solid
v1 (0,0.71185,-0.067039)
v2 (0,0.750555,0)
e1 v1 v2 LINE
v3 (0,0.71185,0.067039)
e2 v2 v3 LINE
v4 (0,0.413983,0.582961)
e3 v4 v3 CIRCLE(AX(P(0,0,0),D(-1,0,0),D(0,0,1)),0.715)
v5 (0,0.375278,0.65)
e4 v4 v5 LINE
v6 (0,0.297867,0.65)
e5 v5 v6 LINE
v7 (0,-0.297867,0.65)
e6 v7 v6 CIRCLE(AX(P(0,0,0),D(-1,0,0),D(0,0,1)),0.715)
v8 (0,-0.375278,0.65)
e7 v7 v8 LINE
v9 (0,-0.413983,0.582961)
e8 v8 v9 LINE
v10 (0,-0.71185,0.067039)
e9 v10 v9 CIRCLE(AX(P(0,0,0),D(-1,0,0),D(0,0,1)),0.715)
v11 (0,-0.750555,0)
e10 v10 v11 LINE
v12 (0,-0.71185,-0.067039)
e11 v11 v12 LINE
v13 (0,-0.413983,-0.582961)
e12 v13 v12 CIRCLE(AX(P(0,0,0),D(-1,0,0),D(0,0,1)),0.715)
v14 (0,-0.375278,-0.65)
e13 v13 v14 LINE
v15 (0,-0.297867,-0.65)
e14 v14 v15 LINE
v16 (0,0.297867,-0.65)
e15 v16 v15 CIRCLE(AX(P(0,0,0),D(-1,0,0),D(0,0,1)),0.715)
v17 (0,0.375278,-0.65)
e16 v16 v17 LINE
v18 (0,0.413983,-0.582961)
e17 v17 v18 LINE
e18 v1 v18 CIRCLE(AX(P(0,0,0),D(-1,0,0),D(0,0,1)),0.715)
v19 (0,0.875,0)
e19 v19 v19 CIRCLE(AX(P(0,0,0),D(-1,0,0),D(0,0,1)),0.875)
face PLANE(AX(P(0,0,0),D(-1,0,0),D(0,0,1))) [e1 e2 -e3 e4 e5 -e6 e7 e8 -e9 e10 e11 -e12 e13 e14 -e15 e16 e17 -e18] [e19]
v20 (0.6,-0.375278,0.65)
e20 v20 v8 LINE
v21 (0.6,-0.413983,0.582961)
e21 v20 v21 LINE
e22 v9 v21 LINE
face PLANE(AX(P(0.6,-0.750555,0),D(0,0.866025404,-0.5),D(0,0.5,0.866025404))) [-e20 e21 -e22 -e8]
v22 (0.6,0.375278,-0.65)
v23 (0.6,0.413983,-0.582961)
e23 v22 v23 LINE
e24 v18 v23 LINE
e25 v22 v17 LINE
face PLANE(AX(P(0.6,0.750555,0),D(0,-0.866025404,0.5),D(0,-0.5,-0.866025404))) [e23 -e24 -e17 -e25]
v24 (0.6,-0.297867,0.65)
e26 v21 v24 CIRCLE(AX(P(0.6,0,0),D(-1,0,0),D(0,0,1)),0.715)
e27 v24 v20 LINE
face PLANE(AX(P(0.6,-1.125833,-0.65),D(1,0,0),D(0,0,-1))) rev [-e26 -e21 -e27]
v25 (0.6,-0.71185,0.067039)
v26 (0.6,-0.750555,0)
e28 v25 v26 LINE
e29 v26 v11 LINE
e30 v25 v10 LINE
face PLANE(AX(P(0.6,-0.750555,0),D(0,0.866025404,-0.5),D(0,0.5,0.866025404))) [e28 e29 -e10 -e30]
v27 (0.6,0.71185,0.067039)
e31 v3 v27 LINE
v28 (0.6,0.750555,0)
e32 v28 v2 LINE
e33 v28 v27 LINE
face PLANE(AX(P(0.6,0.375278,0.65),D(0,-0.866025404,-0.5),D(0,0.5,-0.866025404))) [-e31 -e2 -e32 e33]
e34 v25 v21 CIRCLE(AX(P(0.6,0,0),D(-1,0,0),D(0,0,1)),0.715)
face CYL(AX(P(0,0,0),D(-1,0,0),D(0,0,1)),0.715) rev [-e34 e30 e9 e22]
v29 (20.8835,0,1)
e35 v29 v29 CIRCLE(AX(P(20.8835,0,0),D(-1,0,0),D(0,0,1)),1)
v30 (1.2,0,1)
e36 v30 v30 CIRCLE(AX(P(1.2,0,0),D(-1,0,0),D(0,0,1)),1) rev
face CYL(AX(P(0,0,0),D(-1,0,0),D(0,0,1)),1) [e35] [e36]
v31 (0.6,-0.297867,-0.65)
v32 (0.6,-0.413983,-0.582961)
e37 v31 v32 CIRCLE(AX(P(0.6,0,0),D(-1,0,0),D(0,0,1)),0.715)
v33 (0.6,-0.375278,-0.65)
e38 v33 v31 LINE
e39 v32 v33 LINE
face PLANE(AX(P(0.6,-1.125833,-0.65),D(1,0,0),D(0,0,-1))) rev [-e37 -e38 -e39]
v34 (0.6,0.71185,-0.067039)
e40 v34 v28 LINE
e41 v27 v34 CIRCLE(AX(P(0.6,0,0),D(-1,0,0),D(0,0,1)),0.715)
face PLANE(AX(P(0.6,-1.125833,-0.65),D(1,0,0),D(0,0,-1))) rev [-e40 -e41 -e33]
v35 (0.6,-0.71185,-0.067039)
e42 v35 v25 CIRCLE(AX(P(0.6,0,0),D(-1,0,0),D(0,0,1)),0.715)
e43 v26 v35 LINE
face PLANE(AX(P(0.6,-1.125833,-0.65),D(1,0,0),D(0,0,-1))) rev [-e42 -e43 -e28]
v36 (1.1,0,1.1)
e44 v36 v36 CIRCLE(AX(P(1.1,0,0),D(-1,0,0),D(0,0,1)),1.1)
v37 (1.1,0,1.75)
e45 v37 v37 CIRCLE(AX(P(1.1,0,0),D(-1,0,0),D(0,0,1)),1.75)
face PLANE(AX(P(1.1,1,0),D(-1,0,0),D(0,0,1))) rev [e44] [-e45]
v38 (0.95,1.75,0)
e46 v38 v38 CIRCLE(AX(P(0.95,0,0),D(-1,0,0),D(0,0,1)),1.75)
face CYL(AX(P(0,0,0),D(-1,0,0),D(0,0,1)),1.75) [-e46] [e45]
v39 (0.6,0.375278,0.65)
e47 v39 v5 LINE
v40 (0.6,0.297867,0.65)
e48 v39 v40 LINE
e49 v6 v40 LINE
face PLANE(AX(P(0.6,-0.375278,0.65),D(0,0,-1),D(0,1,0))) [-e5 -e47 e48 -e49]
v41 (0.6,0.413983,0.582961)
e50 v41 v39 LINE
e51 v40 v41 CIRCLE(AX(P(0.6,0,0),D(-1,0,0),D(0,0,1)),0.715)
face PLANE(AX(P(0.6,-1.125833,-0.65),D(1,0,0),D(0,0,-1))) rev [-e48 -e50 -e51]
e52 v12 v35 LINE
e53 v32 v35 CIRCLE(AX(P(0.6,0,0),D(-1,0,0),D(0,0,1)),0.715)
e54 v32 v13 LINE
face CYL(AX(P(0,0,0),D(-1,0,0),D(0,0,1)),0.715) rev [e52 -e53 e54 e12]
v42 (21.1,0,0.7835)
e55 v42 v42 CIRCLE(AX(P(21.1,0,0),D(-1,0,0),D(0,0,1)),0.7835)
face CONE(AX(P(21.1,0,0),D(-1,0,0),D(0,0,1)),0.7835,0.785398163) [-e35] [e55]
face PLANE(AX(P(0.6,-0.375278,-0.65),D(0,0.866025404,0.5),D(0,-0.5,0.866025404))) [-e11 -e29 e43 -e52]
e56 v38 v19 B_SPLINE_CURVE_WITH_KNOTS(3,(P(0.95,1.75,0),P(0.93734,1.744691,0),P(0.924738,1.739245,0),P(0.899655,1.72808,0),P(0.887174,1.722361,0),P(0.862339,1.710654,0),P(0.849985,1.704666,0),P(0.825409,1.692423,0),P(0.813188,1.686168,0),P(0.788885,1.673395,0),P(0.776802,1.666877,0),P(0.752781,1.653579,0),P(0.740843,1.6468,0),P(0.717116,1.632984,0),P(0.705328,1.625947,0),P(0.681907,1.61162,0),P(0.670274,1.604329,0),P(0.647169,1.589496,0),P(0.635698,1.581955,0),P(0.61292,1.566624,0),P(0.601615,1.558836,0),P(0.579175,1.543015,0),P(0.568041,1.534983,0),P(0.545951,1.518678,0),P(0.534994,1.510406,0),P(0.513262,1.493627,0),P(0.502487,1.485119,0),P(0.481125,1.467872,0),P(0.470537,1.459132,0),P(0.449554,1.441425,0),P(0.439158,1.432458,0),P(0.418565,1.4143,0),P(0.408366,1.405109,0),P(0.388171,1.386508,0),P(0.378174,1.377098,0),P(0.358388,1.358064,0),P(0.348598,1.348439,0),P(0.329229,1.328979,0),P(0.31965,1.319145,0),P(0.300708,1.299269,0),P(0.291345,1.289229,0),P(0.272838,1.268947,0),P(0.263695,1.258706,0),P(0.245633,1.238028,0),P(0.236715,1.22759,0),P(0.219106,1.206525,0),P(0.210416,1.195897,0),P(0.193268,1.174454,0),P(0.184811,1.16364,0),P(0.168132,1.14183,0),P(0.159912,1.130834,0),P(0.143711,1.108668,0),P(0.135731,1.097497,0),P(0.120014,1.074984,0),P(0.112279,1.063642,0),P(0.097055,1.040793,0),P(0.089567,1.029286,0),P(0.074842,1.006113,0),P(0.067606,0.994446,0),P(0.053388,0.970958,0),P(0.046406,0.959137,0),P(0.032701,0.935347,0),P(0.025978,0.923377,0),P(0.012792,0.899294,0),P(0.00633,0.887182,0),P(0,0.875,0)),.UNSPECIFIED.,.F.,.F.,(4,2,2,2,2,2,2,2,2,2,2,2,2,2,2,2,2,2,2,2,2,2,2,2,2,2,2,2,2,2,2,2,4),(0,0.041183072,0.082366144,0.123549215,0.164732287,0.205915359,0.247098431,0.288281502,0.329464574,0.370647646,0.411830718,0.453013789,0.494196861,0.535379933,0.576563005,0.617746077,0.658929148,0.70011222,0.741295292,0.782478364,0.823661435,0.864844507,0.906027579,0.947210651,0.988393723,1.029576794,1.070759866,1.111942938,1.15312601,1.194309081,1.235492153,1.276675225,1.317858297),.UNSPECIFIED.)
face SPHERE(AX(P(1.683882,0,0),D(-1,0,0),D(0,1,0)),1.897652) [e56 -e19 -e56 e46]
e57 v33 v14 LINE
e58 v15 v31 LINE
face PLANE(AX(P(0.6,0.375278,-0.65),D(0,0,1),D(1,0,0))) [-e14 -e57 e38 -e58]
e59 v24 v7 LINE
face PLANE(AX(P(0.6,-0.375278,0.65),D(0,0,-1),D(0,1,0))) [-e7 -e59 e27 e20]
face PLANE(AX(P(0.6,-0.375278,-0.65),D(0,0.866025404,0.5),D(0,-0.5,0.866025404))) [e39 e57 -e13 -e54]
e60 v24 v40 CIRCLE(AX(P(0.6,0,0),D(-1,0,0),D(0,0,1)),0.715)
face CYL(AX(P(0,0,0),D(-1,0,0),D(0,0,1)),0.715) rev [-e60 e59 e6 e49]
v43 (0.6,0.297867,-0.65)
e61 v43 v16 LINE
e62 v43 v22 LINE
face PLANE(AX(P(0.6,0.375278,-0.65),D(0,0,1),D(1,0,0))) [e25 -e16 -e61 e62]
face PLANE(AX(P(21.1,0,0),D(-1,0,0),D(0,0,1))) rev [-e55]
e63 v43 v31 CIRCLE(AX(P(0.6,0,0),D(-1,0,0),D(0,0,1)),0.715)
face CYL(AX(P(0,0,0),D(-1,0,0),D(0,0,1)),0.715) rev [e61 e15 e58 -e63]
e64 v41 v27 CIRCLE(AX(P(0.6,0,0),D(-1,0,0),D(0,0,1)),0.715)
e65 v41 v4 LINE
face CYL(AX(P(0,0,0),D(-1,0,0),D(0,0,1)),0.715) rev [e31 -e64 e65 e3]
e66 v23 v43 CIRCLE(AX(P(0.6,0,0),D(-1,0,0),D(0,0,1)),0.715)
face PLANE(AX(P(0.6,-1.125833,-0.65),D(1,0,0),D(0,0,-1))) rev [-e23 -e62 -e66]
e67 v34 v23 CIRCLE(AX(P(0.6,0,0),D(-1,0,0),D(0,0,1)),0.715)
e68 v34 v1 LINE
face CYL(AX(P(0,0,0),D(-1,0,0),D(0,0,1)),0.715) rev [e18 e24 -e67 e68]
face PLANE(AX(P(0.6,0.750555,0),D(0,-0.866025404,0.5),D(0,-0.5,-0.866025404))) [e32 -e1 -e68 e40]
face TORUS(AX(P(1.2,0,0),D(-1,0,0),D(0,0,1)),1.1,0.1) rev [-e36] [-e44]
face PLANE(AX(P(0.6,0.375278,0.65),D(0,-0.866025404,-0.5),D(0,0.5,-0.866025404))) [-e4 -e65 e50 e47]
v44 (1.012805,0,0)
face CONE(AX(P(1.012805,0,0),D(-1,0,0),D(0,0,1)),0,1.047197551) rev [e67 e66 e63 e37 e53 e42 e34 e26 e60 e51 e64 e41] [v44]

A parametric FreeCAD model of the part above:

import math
import FreeCAD as App
import Part
import Sketcher

V = App.Vector
Q = App.Units.Quantity


def edges_at(feature, points):
    """Names of the edges that pass closest to the given points."""
    edges = feature.Shape.Edges
    near = lambda p: min(range(len(edges)), key=lambda i: edges[i].distToShape(Part.Vertex(*p))[0])
    return sorted({f"Edge{near(p) + 1}" for p in points})


def add_polygon(sketch, points):
    """Adds a closed chain of lines whose ends are joined by coincident constraints."""
    first, n = sketch.GeometryCount, len(points)
    for a, b in zip(points, points[1:] + points[:1]):
        sketch.addGeometry(Part.LineSegment(App.Vector(*a, 0), App.Vector(*b, 0)), False)
    for i in range(n):
        sketch.addConstraint(Sketcher.Constraint("Coincident", first + i, 2, first + (i + 1) % n, 1))

doc = App.newDocument("Part")
body = doc.addObject("PartDesign::Body", "Body")

# Sketch on XY plane
sketch1 = body.newObject("Sketcher::SketchObject", "Sketch")
sketch1.AttachmentSupport = (doc.getObject("XY_Plane"), [""])
sketch1.MapMode = "FlatFace"
sketch1.addGeometry([
    Part.LineSegment(V(21.1, 0, 0), V(21.1, 0.7835, 0)),  # 0
    Part.LineSegment(V(21.1, 0.7835, 0), V(20.8835, 1, 0)),  # 1
    Part.LineSegment(V(20.8835, 1, 0), V(1.1, 1, 0)),  # 2
    Part.LineSegment(V(1.1, 1, 0), V(1.1, 1.75, 0)),  # 3
    Part.LineSegment(V(1.1, 1.75, 0), V(0.95, 1.75, 0)),  # 4
    Part.ArcOfCircle(Part.Circle(V(1.683882, 0, 0), V(0, 0, 1), 1.897652), math.radians(112.751272), math.radians(152.542134)),  # 5
    Part.LineSegment(V(0, 0.875, 0), V(0, 0, 0)),  # 6
    Part.LineSegment(V(0, 0, 0), V(21.1, 0, 0)),  # 7
], False)
sketch1.addConstraint([
    Sketcher.Constraint("Coincident", 0, 2, 1, 1),
    Sketcher.Constraint("Coincident", 1, 2, 2, 1),
    Sketcher.Constraint("Coincident", 2, 2, 3, 1),
    Sketcher.Constraint("Coincident", 3, 2, 4, 1),
    Sketcher.Constraint("Coincident", 4, 2, 5, 1),
    Sketcher.Constraint("Coincident", 5, 2, 6, 1),
    Sketcher.Constraint("Coincident", 6, 2, 7, 1),
    Sketcher.Constraint("Coincident", 7, 2, 0, 1),
    Sketcher.Constraint("Vertical", 0),
    Sketcher.Constraint("Horizontal", 2),
    Sketcher.Constraint("Vertical", 3),
    Sketcher.Constraint("Horizontal", 4),
    Sketcher.Constraint("Vertical", 6),
    Sketcher.Constraint("Horizontal", 7),
    Sketcher.Constraint("Coincident", 6, 2, -1, 1),
    Sketcher.Constraint("PointOnObject", 5, 3, -1),
    Sketcher.Constraint("Angle", 1, Q("135 deg")),
    Sketcher.Constraint("DistanceX", 7, 1, 7, 2, Q("21.1 mm")),
    Sketcher.Constraint("DistanceY", -1, 1, 1, 2, Q("1 mm")),
    Sketcher.Constraint("DistanceX", 2, 2, 0, 2, Q("20 mm")),
    Sketcher.Constraint("DistanceX", 4, 2, 4, 1, Q("0.15 mm")),
    Sketcher.Constraint("DistanceY", 3, 1, 3, 2, Q("0.75 mm")),
    Sketcher.Constraint("DistanceY", 6, 2, 6, 1, Q("0.875 mm")),
    Sketcher.Constraint("DistanceX", 2, 2, 2, 1, Q("19.7835 mm")),
])
revolution = body.newObject("PartDesign::Revolution", "Revolution")
revolution.Profile = sketch1
revolution.ReferenceAxis = (sketch1, ["H_Axis"])
revolution.Angle = 360
doc.recompute()

fillet = body.newObject("PartDesign::Fillet", "Fillet")
fillet.Base = (revolution, edges_at(revolution, [(1.1, 0, -1)]))
fillet.Radius = 0.1

# Sketch on XY plane
sketch2 = body.newObject("Sketcher::SketchObject", "Sketch001")
sketch2.AttachmentSupport = (doc.getObject("XY_Plane"), [""])
sketch2.MapMode = "FlatFace"
add_polygon(sketch2, [(0.6, 0.715), (0, 0.715), (0, 0), (1.012805, 0)])  # lines 0-3
sketch2.addConstraint([
    Sketcher.Constraint("Horizontal", 0),
    Sketcher.Constraint("Vertical", 1),
    Sketcher.Constraint("Horizontal", 2),
    Sketcher.Constraint("Coincident", 1, 2, -1, 1),
    Sketcher.Constraint("Angle", 3, Q("120 deg")),
    Sketcher.Constraint("DistanceX", 0, 2, 0, 1, Q("0.6 mm")),
    Sketcher.Constraint("DistanceY", 1, 2, 1, 1, Q("0.715 mm")),
])
groove = body.newObject("PartDesign::Groove", "Groove")
groove.Profile = sketch2
groove.ReferenceAxis = (sketch2, ["H_Axis"])
groove.Angle = 360

# Sketch on YZ plane
sketch3 = body.newObject("Sketcher::SketchObject", "Sketch002")
sketch3.AttachmentSupport = (doc.getObject("YZ_Plane"), [""])
sketch3.MapMode = "FlatFace"
add_polygon(sketch3, [(0.375278, 0.65), (-0.375278, 0.65), (-0.750555, 0), (-0.375278, -0.65), (0.375278, -0.65), (0.750555, 0)])  # lines 0-5
sketch3.addConstraint([
    Sketcher.Constraint("Horizontal", 0),
    Sketcher.Constraint("Horizontal", 3),
    Sketcher.Constraint("Symmetric", 0, 2, 3, 2, -1, 1),
    Sketcher.Constraint("Symmetric", 1, 2, 4, 2, -1, 1),
    Sketcher.Constraint("PointOnObject", 1, 2, -1),
    Sketcher.Constraint("Parallel", 2, 5),
    Sketcher.Constraint("Vertical", 0, 2, 2, 2),
    Sketcher.Constraint("Angle", 1, Q("-120 deg")),
    Sketcher.Constraint("DistanceY", 2, 2, 0, 2, Q("1.3 mm")),
    Sketcher.Constraint("DistanceX", 0, 2, 0, 1, Q("0.750555 mm")),
])
pocket1 = body.newObject("PartDesign::Pocket", "Pocket")
pocket1.Profile = sketch3
pocket1.Length = 0.6
pocket1.Reversed = True

doc.recompute()
